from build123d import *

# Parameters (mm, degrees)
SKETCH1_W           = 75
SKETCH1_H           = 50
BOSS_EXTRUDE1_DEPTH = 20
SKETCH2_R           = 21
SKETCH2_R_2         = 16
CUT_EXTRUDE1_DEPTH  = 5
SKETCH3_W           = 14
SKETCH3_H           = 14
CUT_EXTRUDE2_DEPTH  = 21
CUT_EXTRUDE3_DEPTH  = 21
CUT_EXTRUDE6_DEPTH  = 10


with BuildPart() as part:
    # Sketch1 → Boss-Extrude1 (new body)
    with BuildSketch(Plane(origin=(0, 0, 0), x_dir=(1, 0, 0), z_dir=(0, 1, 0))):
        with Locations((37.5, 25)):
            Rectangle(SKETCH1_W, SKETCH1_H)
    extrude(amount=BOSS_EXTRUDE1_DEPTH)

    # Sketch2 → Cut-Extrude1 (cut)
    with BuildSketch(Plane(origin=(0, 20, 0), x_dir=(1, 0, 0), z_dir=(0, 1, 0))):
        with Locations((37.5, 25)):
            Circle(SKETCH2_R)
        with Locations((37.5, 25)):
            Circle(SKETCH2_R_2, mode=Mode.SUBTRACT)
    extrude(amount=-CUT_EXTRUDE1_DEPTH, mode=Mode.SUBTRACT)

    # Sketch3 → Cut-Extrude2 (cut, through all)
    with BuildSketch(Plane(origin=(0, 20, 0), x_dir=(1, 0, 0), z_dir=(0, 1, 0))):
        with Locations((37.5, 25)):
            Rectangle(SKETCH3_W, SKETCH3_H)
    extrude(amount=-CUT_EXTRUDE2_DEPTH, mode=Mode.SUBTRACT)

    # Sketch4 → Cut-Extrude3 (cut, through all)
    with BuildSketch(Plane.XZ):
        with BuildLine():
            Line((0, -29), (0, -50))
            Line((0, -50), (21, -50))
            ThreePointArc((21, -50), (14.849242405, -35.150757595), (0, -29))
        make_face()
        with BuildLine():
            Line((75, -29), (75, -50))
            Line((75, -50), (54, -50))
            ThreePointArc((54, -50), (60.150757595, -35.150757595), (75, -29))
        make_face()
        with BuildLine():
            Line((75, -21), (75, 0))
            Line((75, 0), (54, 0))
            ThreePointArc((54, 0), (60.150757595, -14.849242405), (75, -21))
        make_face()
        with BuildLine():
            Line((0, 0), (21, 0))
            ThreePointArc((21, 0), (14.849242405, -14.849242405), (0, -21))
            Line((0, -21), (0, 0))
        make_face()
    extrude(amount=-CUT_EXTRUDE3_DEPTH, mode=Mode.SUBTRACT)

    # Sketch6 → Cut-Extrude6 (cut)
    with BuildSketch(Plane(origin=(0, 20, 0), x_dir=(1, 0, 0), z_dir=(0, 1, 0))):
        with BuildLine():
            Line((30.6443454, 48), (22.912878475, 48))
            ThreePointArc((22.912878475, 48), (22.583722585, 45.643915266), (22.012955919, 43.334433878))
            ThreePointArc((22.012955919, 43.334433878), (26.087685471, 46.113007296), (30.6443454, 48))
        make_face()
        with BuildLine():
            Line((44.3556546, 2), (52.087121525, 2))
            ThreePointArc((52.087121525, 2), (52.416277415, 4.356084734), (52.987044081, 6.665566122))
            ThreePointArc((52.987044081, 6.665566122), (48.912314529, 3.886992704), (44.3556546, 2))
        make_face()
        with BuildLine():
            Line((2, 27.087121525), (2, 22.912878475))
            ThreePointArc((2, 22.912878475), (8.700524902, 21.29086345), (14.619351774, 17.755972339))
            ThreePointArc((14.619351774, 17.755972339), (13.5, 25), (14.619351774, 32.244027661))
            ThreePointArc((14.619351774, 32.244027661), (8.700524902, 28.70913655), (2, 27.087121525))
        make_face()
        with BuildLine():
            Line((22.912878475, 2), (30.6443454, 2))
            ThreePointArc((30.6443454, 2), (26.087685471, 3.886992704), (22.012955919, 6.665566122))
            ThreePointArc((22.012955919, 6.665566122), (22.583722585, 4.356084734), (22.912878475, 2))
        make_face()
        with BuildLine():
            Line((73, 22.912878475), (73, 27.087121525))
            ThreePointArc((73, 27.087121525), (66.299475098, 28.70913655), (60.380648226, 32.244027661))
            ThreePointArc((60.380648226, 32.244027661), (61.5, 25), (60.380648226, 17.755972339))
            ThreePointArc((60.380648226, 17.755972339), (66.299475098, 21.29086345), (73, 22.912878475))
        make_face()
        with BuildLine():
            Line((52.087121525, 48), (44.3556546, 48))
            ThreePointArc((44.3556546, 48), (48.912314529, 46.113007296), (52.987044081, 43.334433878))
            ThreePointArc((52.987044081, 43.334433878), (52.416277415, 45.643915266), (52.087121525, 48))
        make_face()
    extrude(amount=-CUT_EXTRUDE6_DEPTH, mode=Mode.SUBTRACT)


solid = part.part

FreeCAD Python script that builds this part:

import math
import FreeCAD as App
import Part
import Sketcher


def add_polygon(sketch, points):
    """Adds a closed chain of lines whose ends are joined by coincident constraints."""
    first, n = sketch.GeometryCount, len(points)
    for a, b in zip(points, points[1:] + points[:1]):
        sketch.addGeometry(Part.LineSegment(App.Vector(*a, 0), App.Vector(*b, 0)), False)
    for i in range(n):
        sketch.addConstraint(Sketcher.Constraint("Coincident", first + i, 2, first + (i + 1) % n, 1))

doc = App.newDocument("Part")
body = doc.addObject("PartDesign::Body", "Body")

# Sketch on XZ plane
sketch1 = body.newObject("Sketcher::SketchObject", "Sketch")
sketch1.AttachmentSupport = (doc.getObject("XZ_Plane"), [""])
sketch1.MapMode = "FlatFace"
add_polygon(sketch1, [(0, -50), (0, 0), (75, 0), (75, -50)])  # lines 0-3
sketch1.addConstraint([
    Sketcher.Constraint("Vertical", 0),
    Sketcher.Constraint("Horizontal", 1),
    Sketcher.Constraint("Vertical", 2),
    Sketcher.Constraint("Horizontal", 3),
    Sketcher.Constraint("Coincident", 0, 2, -1, 1),
    Sketcher.Constraint("DistanceX", 1, 1, 1, 2, 75.0),
    Sketcher.Constraint("DistanceY", 0, 1, 0, 2, 50.0),
])
pad1 = body.newObject("PartDesign::Pad", "Pad")
pad1.Profile = sketch1
pad1.Length = 20
pad1.Reversed = True

# Sketch on XZ plane
sketch2 = body.newObject("Sketcher::SketchObject", "Sketch001")
sketch2.AttachmentSupport = (doc.getObject("XZ_Plane"), [""])
sketch2.MapMode = "FlatFace"
sketch2.AttachmentOffset = App.Placement(App.Vector(0, 0, -20), App.Rotation())
sketch2.addGeometry([
    Part.Circle(App.Vector(38, -25, 0), App.Vector(0, 0, 1), 21),
    Part.Circle(App.Vector(38, -25, 0), App.Vector(0, 0, 1), 16),
], False)
sketch2.addConstraint([
    Sketcher.Constraint("Coincident", 1, 3, 0, 3),
    Sketcher.Constraint("Diameter", 0, 42.0),
    Sketcher.Constraint("Diameter", 1, 32.0),
    Sketcher.Constraint("DistanceY", 0, 3, -1, 1, 25.0),
    Sketcher.Constraint("DistanceX", -1, 1, 0, 3, 37.5),
])
pocket1 = body.newObject("PartDesign::Pocket", "Pocket")
pocket1.Profile = sketch2
pocket1.Length = 5
pocket1.Reversed = True

# Sketch on XZ plane
sketch3 = body.newObject("Sketcher::SketchObject", "Sketch002")
sketch3.AttachmentSupport = (doc.getObject("XZ_Plane"), [""])
sketch3.MapMode = "FlatFace"
sketch3.AttachmentOffset = App.Placement(App.Vector(0, 0, -20), App.Rotation())
add_polygon(sketch3, [(30, -32), (30, -18), (44, -18), (44, -32)])  # lines 0-3
sketch3.addConstraint([
    Sketcher.Constraint("Vertical", 0),
    Sketcher.Constraint("Horizontal", 1),
    Sketcher.Constraint("Vertical", 2),
    Sketcher.Constraint("Horizontal", 3),
    Sketcher.Constraint("Equal", 3, 0),
    Sketcher.Constraint("DistanceX", 1, 1, 1, 2, 14.0),
    Sketcher.Constraint("DistanceY", 0, 2, -1, 1, 18.0),
    Sketcher.Constraint("DistanceX", -1, 1, 0, 2, 30.5),
])
pocket2 = body.newObject("PartDesign::Pocket", "Pocket001")
pocket2.Profile = sketch3
pocket2.Type = "ThroughAll"
pocket2.Reversed = True

# Sketch on XZ plane
sketch4 = body.newObject("Sketcher::SketchObject", "Sketch003")
sketch4.AttachmentSupport = (doc.getObject("XZ_Plane"), [""])
sketch4.MapMode = "FlatFace"
sketch4.addGeometry([
    Part.LineSegment(App.Vector(0, -29, 0), App.Vector(0, -50, 0)),  # 0
    Part.LineSegment(App.Vector(0, -50, 0), App.Vector(21, -50, 0)),  # 1
    Part.ArcOfCircle(Part.Circle(App.Vector(0, -50, 0), App.Vector(0, 0, 1), 21), math.radians(0), math.radians(90)),  # 2
    Part.LineSegment(App.Vector(75, -50, 0), App.Vector(75, -29, 0)),  # 3
    Part.ArcOfCircle(Part.Circle(App.Vector(75, -50, 0), App.Vector(0, 0, 1), 21), math.radians(90), math.radians(180)),  # 4
    Part.LineSegment(App.Vector(54, -50, 0), App.Vector(75, -50, 0)),  # 5
    Part.LineSegment(App.Vector(75, -21, 0), App.Vector(75, 0, 0)),  # 6
    Part.LineSegment(App.Vector(75, 0, 0), App.Vector(54, 0, 0)),  # 7
    Part.ArcOfCircle(Part.Circle(App.Vector(75, 0, 0), App.Vector(0, 0, 1), 21), math.radians(180), math.radians(270)),  # 8
    Part.LineSegment(App.Vector(21, 0, 0), App.Vector(0, 0, 0)),  # 9
    Part.LineSegment(App.Vector(0, 0, 0), App.Vector(0, -21, 0)),  # 10
    Part.ArcOfCircle(Part.Circle(App.Vector(0, 0, 0), App.Vector(0, 0, 1), 21), math.radians(-90), math.radians(0)),  # 11
], False)
sketch4.addConstraint([
    Sketcher.Constraint("Coincident", 0, 2, 1, 1),
    Sketcher.Constraint("Coincident", 1, 2, 2, 1),
    Sketcher.Constraint("Coincident", 2, 2, 0, 1),
    Sketcher.Constraint("Coincident", 3, 2, 4, 1),
    Sketcher.Constraint("Coincident", 4, 2, 5, 1),
    Sketcher.Constraint("Coincident", 5, 2, 3, 1),
    Sketcher.Constraint("Coincident", 6, 2, 7, 1),
    Sketcher.Constraint("Coincident", 7, 2, 8, 1),
    Sketcher.Constraint("Coincident", 8, 2, 6, 1),
    Sketcher.Constraint("Coincident", 9, 2, 10, 1),
    Sketcher.Constraint("Coincident", 10, 2, 11, 1),
    Sketcher.Constraint("Coincident", 11, 2, 9, 1),
    Sketcher.Constraint("Vertical", 0),
    Sketcher.Constraint("Horizontal", 1),
    Sketcher.Constraint("Vertical", 3),
    Sketcher.Constraint("Horizontal", 5),
    Sketcher.Constraint("Vertical", 6),
    Sketcher.Constraint("Horizontal", 7),
    Sketcher.Constraint("Horizontal", 9),
    Sketcher.Constraint("Vertical", 10),
    Sketcher.Constraint("Coincident", 11, 3, -1, 1),
    Sketcher.Constraint("Coincident", 9, 2, -1, 1),
    Sketcher.Constraint("Coincident", 0, 2, 2, 3),
    Sketcher.Constraint("Coincident", 5, 2, 4, 3),
    Sketcher.Constraint("Coincident", 6, 2, 8, 3),
    Sketcher.Constraint("Equal", 2, 4),
    Sketcher.Constraint("Equal", 4, 8),
    Sketcher.Constraint("Equal", 8, 11),
    Sketcher.Constraint("PointOnObject", 2, 3, -2),
    Sketcher.Constraint("PointOnObject", 8, 3, -1),
    Sketcher.Constraint("Horizontal", 2, 3, 4, 3),
    Sketcher.Constraint("Vertical", 4, 3, 8, 3),
    Sketcher.Constraint("Radius", 2, 21.0),
    Sketcher.Constraint("DistanceY", 2, 3, -1, 1, 50.0),
    Sketcher.Constraint("DistanceX", -1, 1, 4, 3, 75.0),
])
pocket3 = body.newObject("PartDesign::Pocket", "Pocket002")
pocket3.Profile = sketch4
pocket3.Type = "ThroughAll"

# Sketch on XZ plane
sketch5 = body.newObject("Sketcher::SketchObject", "Sketch004")
sketch5.AttachmentSupport = (doc.getObject("XZ_Plane"), [""])
sketch5.MapMode = "FlatFace"
sketch5.AttachmentOffset = App.Placement(App.Vector(0, 0, -20), App.Rotation())
sketch5.addGeometry([
    Part.LineSegment(App.Vector(30.6, -48, 0), App.Vector(22.9, -48, 0)),  # 0
    Part.ArcOfCircle(Part.Circle(App.Vector(0, -50, 0), App.Vector(0, 0, 1), 23), math.radians(4.99), math.radians(16.85)),  # 1
    Part.ArcOfCircle(Part.Circle(App.Vector(37.5, -25, 0), App.Vector(0, 0, 1), 24), math.radians(-130), math.radians(-107)),  # 2
    Part.LineSegment(App.Vector(44.4, -2, 0), App.Vector(52.1, -2, 0)),  # 3
    Part.ArcOfCircle(Part.Circle(App.Vector(75, 0, 0), App.Vector(0, 0, 1), 23), math.radians(-175.01), math.radians(-163.15)),  # 4
    Part.ArcOfCircle(Part.Circle(App.Vector(37.5, -25, 0), App.Vector(0, 0, 1), 24), math.radians(50), math.radians(73)),  # 5
    Part.LineSegment(App.Vector(2, -27.1, 0), App.Vector(2, -22.9, 0)),  # 6
    Part.ArcOfCircle(Part.Circle(App.Vector(0, 0, 0), App.Vector(0, 0, 1), 23), math.radians(-85), math.radians(-51)),  # 7
    Part.ArcOfCircle(Part.Circle(App.Vector(37.5, -25, 0), App.Vector(0, 0, 1), 24), math.radians(162), math.radians(198)),  # 8
    Part.ArcOfCircle(Part.Circle(App.Vector(0, -50, 0), App.Vector(0, 0, 1), 23), math.radians(51), math.radians(85)),  # 9
    Part.LineSegment(App.Vector(22.9, -2, 0), App.Vector(30.6, -2, 0)),  # 10
    Part.ArcOfCircle(Part.Circle(App.Vector(37.5, -25, 0), App.Vector(0, 0, 1), 24), math.radians(107), math.radians(130)),  # 11
    Part.ArcOfCircle(Part.Circle(App.Vector(0, 0, 0), App.Vector(0, 0, 1), 23), math.radians(-16.85), math.radians(-4.99)),  # 12
    Part.LineSegment(App.Vector(73, -22.9, 0), App.Vector(73, -27.1, 0)),  # 13
    Part.ArcOfCircle(Part.Circle(App.Vector(75, -50, 0), App.Vector(0, 0, 1), 23), math.radians(95), math.radians(129)),  # 14
    Part.ArcOfCircle(Part.Circle(App.Vector(37.5, -25, 0), App.Vector(0, 0, 1), 24), math.radians(-18), math.radians(18)),  # 15
    Part.ArcOfCircle(Part.Circle(App.Vector(75, 0, 0), App.Vector(0, 0, 1), 23), math.radians(-129), math.radians(-95)),  # 16
    Part.LineSegment(App.Vector(52.1, -48, 0), App.Vector(44.4, -48, 0)),  # 17
    Part.ArcOfCircle(Part.Circle(App.Vector(37.5, -25, 0), App.Vector(0, 0, 1), 24), math.radians(-73), math.radians(-50)),  # 18
    Part.ArcOfCircle(Part.Circle(App.Vector(75, -50, 0), App.Vector(0, 0, 1), 23), math.radians(163.15), math.radians(175.01)),  # 19
], False)
sketch5.addConstraint([
    Sketcher.Constraint("Coincident", 0, 2, 1, 1),
    Sketcher.Constraint("Coincident", 1, 2, 2, 1),
    Sketcher.Constraint("Coincident", 2, 2, 0, 1),
    Sketcher.Constraint("Coincident", 3, 2, 4, 1),
    Sketcher.Constraint("Coincident", 4, 2, 5, 1),
    Sketcher.Constraint("Coincident", 5, 2, 3, 1),
    Sketcher.Constraint("Coincident", 6, 2, 7, 1),
    Sketcher.Constraint("Coincident", 7, 2, 8, 1),
    Sketcher.Constraint("Coincident", 8, 2, 9, 1),
    Sketcher.Constraint("Coincident", 9, 2, 6, 1),
    Sketcher.Constraint("Coincident", 10, 2, 11, 1),
    Sketcher.Constraint("Coincident", 11, 2, 12, 1),
    Sketcher.Constraint("Coincident", 12, 2, 10, 1),
    Sketcher.Constraint("Coincident", 13, 2, 14, 1),
    Sketcher.Constraint("Coincident", 14, 2, 15, 1),
    Sketcher.Constraint("Coincident", 15, 2, 16, 1),
    Sketcher.Constraint("Coincident", 16, 2, 13, 1),
    Sketcher.Constraint("Coincident", 17, 2, 18, 1),
    Sketcher.Constraint("Coincident", 18, 2, 19, 1),
    Sketcher.Constraint("Coincident", 19, 2, 17, 1),
    Sketcher.Constraint("Horizontal", 0),
    Sketcher.Constraint("Horizontal", 3),
    Sketcher.Constraint("Vertical", 6),
    Sketcher.Constraint("Horizontal", 10),
    Sketcher.Constraint("Vertical", 13),
    Sketcher.Constraint("Horizontal", 17),
    Sketcher.Constraint("Coincident", 7, 3, -1, 1),
    Sketcher.Constraint("Coincident", 12, 3, -1, 1),
    Sketcher.Constraint("Coincident", 5, 3, 2, 3),
    Sketcher.Constraint("Coincident", 8, 3, 2, 3),
    Sketcher.Constraint("Coincident", 9, 3, 1, 3),
    Sketcher.Constraint("Coincident", 11, 3, 2, 3),
    Sketcher.Constraint("Coincident", 15, 3, 2, 3),
    Sketcher.Constraint("Coincident", 16, 3, 4, 3),
    Sketcher.Constraint("Coincident", 18, 3, 2, 3),
    Sketcher.Constraint("Coincident", 19, 3, 14, 3),
    Sketcher.Constraint("Equal", 1, 4),
    Sketcher.Constraint("Equal", 2, 5),
    Sketcher.Constraint("Equal", 4, 7),
    Sketcher.Constraint("Equal", 5, 8),
    Sketcher.Constraint("Equal", 7, 9),
    Sketcher.Constraint("Equal", 8, 11),
    Sketcher.Constraint("Equal", 9, 12),
    Sketcher.Constraint("Equal", 12, 14),
    Sketcher.Constraint("Equal", 11, 15),
    Sketcher.Constraint("Equal", 14, 16),
    Sketcher.Constraint("Equal", 15, 18),
    Sketcher.Constraint("Equal", 16, 19),
    Sketcher.Constraint("PointOnObject", 1, 3, -2),
    Sketcher.Constraint("PointOnObject", 4, 3, -1),
    Sketcher.Constraint("Horizontal", 9, 3, 14, 3),
    Sketcher.Constraint("Horizontal", 5, 2, 10, 2),
    Sketcher.Constraint("Horizontal", 4, 2, 11, 2),
    Sketcher.Constraint("Horizontal", 9, 2, 13, 2),
    Sketcher.Constraint("Horizontal", 8, 2, 14, 2),
    Sketcher.Constraint("Horizontal", 2, 2, 17, 2),
    Sketcher.Constraint("Vertical", 7, 2, 8, 2),
    Sketcher.Constraint("Vertical", 2, 2, 10, 2),
    Sketcher.Constraint("Radius", 1, 23.0),
    Sketcher.Constraint("Radius", 2, 24.0),
    Sketcher.Constraint("DistanceY", 1, 3, -1, 1, 50.0),
    Sketcher.Constraint("DistanceX", -1, 1, 4, 3, 75.0),
    Sketcher.Constraint("DistanceY", 0, 2, -1, 1, 48.0),
    Sketcher.Constraint("DistanceX", -1, 1, 6, 2, 2.0),
])
pocket4 = body.newObject("PartDesign::Pocket", "Pocket003")
pocket4.Profile = sketch5
pocket4.Length = 10
pocket4.Reversed = True

doc.recompute()
